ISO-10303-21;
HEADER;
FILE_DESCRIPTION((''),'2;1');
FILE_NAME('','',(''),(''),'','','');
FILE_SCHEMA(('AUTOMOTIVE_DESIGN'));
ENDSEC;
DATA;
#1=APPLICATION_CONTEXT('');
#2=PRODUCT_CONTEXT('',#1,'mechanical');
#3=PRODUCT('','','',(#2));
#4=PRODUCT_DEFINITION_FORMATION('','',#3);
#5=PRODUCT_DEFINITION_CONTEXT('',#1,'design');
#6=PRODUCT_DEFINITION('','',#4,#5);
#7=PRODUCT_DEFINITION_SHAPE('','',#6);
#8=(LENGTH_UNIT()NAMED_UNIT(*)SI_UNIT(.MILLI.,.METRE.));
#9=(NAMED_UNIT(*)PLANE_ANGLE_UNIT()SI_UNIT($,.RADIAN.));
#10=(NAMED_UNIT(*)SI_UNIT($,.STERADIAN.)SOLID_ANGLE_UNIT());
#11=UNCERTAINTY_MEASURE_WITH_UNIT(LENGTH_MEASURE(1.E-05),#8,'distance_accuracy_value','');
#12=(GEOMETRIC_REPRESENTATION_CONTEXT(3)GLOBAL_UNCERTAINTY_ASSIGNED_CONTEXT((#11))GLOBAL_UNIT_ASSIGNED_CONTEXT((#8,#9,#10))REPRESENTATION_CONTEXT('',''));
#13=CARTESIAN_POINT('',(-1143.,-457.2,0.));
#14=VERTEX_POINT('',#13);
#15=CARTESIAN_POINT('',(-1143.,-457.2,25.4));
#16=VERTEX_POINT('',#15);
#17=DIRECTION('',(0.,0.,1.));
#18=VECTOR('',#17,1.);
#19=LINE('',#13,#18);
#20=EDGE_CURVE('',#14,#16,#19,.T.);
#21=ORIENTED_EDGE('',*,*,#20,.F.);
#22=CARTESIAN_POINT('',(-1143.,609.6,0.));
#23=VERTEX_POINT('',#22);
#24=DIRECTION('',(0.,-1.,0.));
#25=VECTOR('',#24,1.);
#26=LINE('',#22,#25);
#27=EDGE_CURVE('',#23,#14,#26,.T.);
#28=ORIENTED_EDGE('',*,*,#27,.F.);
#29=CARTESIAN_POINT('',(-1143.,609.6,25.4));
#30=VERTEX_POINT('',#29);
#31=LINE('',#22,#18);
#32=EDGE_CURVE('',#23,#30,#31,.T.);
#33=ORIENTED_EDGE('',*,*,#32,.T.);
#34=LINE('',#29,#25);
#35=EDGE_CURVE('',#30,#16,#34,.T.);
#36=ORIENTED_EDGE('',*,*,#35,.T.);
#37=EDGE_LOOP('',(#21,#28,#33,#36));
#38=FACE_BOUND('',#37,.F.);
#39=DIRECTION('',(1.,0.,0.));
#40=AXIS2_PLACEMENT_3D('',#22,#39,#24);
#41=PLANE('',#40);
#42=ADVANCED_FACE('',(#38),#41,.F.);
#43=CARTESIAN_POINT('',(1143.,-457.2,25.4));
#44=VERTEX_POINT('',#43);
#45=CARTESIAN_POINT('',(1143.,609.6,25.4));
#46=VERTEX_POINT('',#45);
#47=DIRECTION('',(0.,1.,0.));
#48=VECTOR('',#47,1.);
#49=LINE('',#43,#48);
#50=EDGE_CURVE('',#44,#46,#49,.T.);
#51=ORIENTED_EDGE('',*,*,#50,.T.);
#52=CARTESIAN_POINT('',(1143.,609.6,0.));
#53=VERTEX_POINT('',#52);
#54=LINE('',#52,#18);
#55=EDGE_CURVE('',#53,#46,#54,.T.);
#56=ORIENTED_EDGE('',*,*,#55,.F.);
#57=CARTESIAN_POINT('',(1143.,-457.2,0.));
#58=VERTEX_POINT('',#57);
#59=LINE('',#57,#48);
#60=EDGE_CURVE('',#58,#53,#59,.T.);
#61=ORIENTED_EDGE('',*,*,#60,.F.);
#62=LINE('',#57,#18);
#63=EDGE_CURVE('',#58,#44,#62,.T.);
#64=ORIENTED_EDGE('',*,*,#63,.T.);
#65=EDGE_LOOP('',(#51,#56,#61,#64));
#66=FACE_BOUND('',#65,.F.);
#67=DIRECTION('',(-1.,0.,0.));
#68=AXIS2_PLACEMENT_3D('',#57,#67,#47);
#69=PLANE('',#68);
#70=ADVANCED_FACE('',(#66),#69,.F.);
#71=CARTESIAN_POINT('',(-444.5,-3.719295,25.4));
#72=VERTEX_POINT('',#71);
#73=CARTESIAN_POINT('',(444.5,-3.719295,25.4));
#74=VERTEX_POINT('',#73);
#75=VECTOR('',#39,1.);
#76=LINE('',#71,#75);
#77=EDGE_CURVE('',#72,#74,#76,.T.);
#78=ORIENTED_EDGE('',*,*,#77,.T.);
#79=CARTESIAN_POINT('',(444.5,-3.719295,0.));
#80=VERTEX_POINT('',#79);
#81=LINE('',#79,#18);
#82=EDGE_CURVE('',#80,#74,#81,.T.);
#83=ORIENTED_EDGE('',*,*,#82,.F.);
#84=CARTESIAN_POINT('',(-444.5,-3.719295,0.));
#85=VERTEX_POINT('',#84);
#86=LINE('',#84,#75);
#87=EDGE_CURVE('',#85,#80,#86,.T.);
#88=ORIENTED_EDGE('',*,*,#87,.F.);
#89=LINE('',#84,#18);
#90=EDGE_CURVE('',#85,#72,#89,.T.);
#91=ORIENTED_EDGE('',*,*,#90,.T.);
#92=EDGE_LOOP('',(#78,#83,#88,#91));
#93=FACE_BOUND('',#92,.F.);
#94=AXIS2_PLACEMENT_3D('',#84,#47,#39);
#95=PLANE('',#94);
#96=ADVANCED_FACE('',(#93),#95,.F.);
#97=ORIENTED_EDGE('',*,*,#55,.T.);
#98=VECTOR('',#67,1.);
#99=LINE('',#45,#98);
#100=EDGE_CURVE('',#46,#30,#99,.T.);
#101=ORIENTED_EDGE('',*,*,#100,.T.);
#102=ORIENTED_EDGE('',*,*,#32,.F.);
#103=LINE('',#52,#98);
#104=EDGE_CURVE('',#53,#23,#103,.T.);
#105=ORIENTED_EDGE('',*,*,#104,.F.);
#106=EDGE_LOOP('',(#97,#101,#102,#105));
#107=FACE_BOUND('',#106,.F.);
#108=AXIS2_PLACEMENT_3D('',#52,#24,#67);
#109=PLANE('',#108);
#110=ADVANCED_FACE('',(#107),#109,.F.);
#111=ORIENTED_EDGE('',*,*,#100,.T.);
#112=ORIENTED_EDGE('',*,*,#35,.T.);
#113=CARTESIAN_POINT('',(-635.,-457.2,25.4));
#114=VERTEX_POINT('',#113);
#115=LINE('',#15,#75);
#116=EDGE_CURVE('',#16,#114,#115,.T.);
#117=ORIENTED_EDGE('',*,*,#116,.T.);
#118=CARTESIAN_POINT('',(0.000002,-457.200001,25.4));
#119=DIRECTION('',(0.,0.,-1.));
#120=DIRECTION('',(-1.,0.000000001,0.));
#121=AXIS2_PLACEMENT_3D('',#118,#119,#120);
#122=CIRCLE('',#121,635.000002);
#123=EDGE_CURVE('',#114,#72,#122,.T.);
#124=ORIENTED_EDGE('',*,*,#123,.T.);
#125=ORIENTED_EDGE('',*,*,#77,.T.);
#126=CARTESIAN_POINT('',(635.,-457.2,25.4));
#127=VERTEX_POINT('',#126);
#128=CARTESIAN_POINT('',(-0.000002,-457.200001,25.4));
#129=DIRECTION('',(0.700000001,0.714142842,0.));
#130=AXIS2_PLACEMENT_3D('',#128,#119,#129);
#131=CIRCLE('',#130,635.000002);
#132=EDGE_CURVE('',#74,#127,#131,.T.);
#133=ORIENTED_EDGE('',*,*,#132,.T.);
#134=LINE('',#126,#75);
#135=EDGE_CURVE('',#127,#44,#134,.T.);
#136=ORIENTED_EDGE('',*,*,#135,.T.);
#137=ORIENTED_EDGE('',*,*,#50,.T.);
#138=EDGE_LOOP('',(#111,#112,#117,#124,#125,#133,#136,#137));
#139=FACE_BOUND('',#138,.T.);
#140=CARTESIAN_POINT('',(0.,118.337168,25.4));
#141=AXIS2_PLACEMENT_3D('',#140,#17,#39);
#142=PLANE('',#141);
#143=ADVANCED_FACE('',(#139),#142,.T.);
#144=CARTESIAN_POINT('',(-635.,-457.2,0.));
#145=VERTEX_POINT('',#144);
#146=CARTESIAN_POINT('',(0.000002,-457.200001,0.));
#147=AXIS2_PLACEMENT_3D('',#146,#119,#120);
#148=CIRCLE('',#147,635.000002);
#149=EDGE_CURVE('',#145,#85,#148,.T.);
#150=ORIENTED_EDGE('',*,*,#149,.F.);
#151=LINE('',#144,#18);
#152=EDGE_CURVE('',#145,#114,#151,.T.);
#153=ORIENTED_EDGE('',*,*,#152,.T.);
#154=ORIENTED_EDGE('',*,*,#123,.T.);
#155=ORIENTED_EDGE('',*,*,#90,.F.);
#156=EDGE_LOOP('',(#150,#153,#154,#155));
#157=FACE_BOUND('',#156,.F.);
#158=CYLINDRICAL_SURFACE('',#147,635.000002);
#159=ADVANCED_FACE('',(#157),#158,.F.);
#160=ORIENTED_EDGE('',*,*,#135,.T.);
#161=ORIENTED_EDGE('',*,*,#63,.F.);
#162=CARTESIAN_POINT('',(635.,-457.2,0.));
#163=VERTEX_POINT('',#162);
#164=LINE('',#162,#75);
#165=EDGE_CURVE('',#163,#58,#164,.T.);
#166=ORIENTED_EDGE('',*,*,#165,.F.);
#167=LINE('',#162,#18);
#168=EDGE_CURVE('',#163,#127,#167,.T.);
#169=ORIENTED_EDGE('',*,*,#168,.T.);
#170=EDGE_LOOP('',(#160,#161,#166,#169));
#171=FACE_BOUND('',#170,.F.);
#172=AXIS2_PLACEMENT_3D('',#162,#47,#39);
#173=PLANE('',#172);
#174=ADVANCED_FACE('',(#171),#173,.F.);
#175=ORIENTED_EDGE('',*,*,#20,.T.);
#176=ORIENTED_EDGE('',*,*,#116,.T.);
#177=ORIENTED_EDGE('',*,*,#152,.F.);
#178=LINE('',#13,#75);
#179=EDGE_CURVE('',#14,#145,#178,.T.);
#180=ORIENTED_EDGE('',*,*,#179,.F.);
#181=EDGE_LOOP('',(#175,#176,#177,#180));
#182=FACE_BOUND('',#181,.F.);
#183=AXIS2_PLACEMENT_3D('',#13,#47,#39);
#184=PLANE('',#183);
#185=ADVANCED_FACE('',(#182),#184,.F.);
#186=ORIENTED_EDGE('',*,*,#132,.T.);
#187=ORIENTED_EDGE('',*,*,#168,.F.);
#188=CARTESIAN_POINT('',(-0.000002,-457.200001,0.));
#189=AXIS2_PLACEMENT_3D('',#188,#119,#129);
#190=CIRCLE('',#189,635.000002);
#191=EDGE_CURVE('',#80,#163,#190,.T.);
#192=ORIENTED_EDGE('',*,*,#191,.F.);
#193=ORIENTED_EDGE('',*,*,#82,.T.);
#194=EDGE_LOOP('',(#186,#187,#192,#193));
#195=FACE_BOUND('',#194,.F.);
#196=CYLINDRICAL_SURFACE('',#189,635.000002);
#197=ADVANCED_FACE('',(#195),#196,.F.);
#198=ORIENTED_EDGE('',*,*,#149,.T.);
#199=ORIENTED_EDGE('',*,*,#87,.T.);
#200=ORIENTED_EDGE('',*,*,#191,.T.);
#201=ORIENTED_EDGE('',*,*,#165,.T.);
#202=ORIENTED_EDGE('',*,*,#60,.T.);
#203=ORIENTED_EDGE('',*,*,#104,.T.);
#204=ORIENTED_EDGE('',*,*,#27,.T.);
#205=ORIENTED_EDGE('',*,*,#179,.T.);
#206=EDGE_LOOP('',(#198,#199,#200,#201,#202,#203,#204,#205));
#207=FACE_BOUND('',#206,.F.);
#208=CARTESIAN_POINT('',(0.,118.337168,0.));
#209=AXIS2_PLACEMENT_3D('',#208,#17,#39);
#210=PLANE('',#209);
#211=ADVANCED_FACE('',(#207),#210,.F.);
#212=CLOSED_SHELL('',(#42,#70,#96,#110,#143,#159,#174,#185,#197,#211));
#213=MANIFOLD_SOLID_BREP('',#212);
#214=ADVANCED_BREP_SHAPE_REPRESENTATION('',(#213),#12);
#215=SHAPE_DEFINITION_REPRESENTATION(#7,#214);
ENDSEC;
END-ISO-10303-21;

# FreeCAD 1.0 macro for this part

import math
import FreeCAD as App
import Part
import Sketcher

V = App.Vector
Q = App.Units.Quantity

doc = App.newDocument("Part")
body = doc.addObject("PartDesign::Body", "Body")

sketch1 = doc.addObject("Sketcher::SketchObject", "Sketch")
body.addObject(sketch1)
sketch1.AttachmentSupport = (doc.XY_Plane, [""])
sketch1.MapMode = "FlatFace"
sketch1.addGeometry(Part.LineSegment(V(-1143, 610, 0), V(-1143, -457, 0)), False)
sketch1.addGeometry(Part.LineSegment(V(-1143, -457, 0), V(-635, -457, 0)), False)
sketch1.addGeometry(Part.ArcOfCircle(Part.Circle(V(0, -457, 0), V(0, 0, 1), 635), math.radians(134), math.radians(180)), False)
sketch1.addGeometry(Part.LineSegment(V(-444, -4, 0), V(444, -4, 0)), False)
sketch1.addGeometry(Part.ArcOfCircle(Part.Circle(V(0, -457, 0), V(0, 0, 1), 635), math.radians(0), math.radians(46)), False)
sketch1.addGeometry(Part.LineSegment(V(635, -457, 0), V(1143, -457, 0)), False)
sketch1.addGeometry(Part.LineSegment(V(1143, -457, 0), V(1143, 610, 0)), False)
sketch1.addGeometry(Part.LineSegment(V(1143, 610, 0), V(-1143, 610, 0)), False)
sketch1.addConstraint(Sketcher.Constraint("Coincident", 0, 2, 1, 1))
sketch1.addConstraint(Sketcher.Constraint("Coincident", 1, 2, 2, 2))
sketch1.addConstraint(Sketcher.Constraint("Coincident", 2, 1, 3, 1))
sketch1.addConstraint(Sketcher.Constraint("Coincident", 3, 2, 4, 2))
sketch1.addConstraint(Sketcher.Constraint("Coincident", 4, 1, 5, 1))
sketch1.addConstraint(Sketcher.Constraint("Coincident", 5, 2, 6, 1))
sketch1.addConstraint(Sketcher.Constraint("Coincident", 6, 2, 7, 1))
sketch1.addConstraint(Sketcher.Constraint("Coincident", 7, 2, 0, 1))
sketch1.addConstraint(Sketcher.Constraint("Vertical", 0))
sketch1.addConstraint(Sketcher.Constraint("Horizontal", 1))
sketch1.addConstraint(Sketcher.Constraint("Horizontal", 3))
sketch1.addConstraint(Sketcher.Constraint("Horizontal", 5))
sketch1.addConstraint(Sketcher.Constraint("Vertical", 6))
sketch1.addConstraint(Sketcher.Constraint("Horizontal", 7))
sketch1.addConstraint(Sketcher.Constraint("Coincident", 4, 3, 2, 3))
sketch1.addConstraint(Sketcher.Constraint("Equal", 2, 4))
sketch1.addConstraint(Sketcher.Constraint("Symmetric", 0, 2, 5, 2, -2))
sketch1.addConstraint(Sketcher.Constraint("PointOnObject", 2, 3, -2))
sketch1.addConstraint(Sketcher.Constraint("Horizontal", 4, 3, 0, 2))
sketch1.addConstraint(Sketcher.Constraint("Radius", 2, Q("25.0000001 in")))
sketch1.addConstraint(Sketcher.Constraint("DistanceX", 1, 1, 1, 2, Q("20 in")))
sketch1.addConstraint(Sketcher.Constraint("DistanceX", 3, 1, 3, 2, Q("35 in")))
sketch1.addConstraint(Sketcher.Constraint("DistanceY", 0, 2, 0, 1, Q("42 in")))
sketch1.addConstraint(Sketcher.Constraint("DistanceY", 2, 3, -1, 1, Q("18 in")))
pad1 = doc.addObject("PartDesign::Pad", "Pad")
body.addObject(pad1)
pad1.Profile = sketch1
pad1.Length = Q("1 in")

sketch2 = doc.addObject("Sketcher::SketchObject", "Sketch001")
body.addObject(sketch2)
sketch2.AttachmentSupport = (doc.XY_Plane, [""])
sketch2.MapMode = "FlatFace"
sketch2.addGeometry(Part.LineSegment(V(-1143, 610, 0), V(-1143, -457, 0)), False)
sketch2.addGeometry(Part.LineSegment(V(-1143, -457, 0), V(-635, -457, 0)), False)
sketch2.addGeometry(Part.ArcOfCircle(Part.Circle(V(0, -457, 0), V(0, 0, 1), 635), math.radians(134), math.radians(180)), False)
sketch2.addGeometry(Part.LineSegment(V(-444, -4, 0), V(444, -4, 0)), False)
sketch2.addGeometry(Part.ArcOfCircle(Part.Circle(V(0, -457, 0), V(0, 0, 1), 635), math.radians(0), math.radians(46)), False)
sketch2.addGeometry(Part.LineSegment(V(635, -457, 0), V(1143, -457, 0)), False)
sketch2.addGeometry(Part.LineSegment(V(1143, -457, 0), V(1143, 610, 0)), False)
sketch2.addGeometry(Part.LineSegment(V(1143, 610, 0), V(-1143, 610, 0)), False)
sketch2.addConstraint(Sketcher.Constraint("Coincident", 0, 2, 1, 1))
sketch2.addConstraint(Sketcher.Constraint("Coincident", 1, 2, 2, 2))
sketch2.addConstraint(Sketcher.Constraint("Coincident", 2, 1, 3, 1))
sketch2.addConstraint(Sketcher.Constraint("Coincident", 3, 2, 4, 2))
sketch2.addConstraint(Sketcher.Constraint("Coincident", 4, 1, 5, 1))
sketch2.addConstraint(Sketcher.Constraint("Coincident", 5, 2, 6, 1))
sketch2.addConstraint(Sketcher.Constraint("Coincident", 6, 2, 7, 1))
sketch2.addConstraint(Sketcher.Constraint("Coincident", 7, 2, 0, 1))
sketch2.addConstraint(Sketcher.Constraint("Vertical", 0))
sketch2.addConstraint(Sketcher.Constraint("Horizontal", 1))
sketch2.addConstraint(Sketcher.Constraint("Horizontal", 3))
sketch2.addConstraint(Sketcher.Constraint("Horizontal", 5))
sketch2.addConstraint(Sketcher.Constraint("Vertical", 6))
sketch2.addConstraint(Sketcher.Constraint("Horizontal", 7))
sketch2.addConstraint(Sketcher.Constraint("Coincident", 4, 3, 2, 3))
sketch2.addConstraint(Sketcher.Constraint("Equal", 2, 4))
sketch2.addConstraint(Sketcher.Constraint("Symmetric", 0, 2, 5, 2, -2))
sketch2.addConstraint(Sketcher.Constraint("PointOnObject", 2, 3, -2))
sketch2.addConstraint(Sketcher.Constraint("Horizontal", 4, 3, 0, 2))
sketch2.addConstraint(Sketcher.Constraint("Radius", 2, Q("25.0000001 in")))
sketch2.addConstraint(Sketcher.Constraint("DistanceX", 1, 1, 1, 2, Q("20 in")))
sketch2.addConstraint(Sketcher.Constraint("DistanceX", 3, 1, 3, 2, Q("35 in")))
sketch2.addConstraint(Sketcher.Constraint("DistanceY", 0, 2, 0, 1, Q("42 in")))
sketch2.addConstraint(Sketcher.Constraint("DistanceY", 2, 3, -1, 1, Q("18 in")))
pad2 = doc.addObject("PartDesign::Pad", "Pad001")
body.addObject(pad2)
pad2.Profile = sketch2
pad2.Length = Q("1 in")

doc.recompute()
